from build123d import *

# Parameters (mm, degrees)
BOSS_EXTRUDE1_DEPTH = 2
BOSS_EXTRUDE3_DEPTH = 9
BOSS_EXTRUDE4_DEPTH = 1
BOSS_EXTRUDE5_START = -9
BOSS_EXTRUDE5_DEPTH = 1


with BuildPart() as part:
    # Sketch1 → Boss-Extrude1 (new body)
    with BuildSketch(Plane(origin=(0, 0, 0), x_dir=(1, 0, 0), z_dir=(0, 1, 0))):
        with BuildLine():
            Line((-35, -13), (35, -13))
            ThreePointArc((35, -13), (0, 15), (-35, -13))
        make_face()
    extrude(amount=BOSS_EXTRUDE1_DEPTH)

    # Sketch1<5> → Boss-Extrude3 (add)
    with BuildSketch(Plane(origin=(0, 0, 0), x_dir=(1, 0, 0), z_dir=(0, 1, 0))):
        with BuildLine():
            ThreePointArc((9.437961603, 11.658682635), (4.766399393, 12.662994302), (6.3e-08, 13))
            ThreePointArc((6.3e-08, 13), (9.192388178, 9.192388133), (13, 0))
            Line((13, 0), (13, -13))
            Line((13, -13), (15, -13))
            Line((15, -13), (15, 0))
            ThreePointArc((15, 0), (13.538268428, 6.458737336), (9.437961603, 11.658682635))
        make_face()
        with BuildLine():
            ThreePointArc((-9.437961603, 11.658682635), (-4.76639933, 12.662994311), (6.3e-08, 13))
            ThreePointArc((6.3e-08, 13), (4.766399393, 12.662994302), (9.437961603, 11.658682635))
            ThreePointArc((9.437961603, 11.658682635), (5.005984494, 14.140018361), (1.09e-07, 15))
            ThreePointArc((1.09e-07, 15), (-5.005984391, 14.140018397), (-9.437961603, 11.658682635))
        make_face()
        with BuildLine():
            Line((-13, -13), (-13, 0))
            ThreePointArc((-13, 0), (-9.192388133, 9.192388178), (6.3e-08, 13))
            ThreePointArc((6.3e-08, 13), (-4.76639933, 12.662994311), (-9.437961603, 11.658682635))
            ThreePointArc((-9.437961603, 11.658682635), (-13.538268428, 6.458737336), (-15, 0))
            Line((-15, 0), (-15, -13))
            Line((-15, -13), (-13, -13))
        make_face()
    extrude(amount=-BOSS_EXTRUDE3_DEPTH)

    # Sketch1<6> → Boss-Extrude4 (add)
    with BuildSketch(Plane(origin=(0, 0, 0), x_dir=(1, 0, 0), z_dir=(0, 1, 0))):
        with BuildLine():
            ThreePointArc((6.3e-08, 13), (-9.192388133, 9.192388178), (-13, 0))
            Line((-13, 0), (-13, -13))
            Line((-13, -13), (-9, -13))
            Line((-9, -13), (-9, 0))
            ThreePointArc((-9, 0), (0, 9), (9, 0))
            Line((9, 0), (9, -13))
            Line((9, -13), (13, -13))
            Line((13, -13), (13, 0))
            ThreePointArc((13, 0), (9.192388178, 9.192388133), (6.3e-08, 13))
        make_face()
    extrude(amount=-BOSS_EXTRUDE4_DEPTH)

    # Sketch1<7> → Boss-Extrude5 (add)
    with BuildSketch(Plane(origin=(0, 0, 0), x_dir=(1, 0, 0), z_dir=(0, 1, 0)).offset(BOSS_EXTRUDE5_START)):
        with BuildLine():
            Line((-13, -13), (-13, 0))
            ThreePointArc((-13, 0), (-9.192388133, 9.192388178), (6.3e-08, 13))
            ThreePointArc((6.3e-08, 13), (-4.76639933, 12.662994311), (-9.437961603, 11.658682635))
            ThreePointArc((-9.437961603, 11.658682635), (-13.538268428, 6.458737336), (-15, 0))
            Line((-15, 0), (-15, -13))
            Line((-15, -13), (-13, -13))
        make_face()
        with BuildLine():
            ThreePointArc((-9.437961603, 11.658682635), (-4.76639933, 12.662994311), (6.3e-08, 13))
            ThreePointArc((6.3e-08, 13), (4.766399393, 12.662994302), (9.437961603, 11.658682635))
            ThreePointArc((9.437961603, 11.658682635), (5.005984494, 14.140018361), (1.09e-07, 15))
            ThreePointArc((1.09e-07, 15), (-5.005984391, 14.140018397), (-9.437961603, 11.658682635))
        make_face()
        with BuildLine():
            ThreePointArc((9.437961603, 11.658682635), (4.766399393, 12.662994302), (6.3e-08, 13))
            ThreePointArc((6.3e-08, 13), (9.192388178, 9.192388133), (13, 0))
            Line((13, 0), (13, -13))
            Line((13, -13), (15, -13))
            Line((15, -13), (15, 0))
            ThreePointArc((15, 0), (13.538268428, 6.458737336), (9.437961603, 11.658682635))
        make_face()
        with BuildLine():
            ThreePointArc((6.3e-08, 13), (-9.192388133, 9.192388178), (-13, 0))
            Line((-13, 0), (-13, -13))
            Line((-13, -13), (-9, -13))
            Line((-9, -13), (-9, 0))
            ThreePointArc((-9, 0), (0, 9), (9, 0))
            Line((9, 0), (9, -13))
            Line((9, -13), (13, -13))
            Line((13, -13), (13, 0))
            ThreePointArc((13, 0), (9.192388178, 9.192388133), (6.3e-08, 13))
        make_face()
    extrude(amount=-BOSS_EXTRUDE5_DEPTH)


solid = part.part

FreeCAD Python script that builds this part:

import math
import FreeCAD as App
import Part
import Sketcher

doc = App.newDocument("Part")
body = doc.addObject("PartDesign::Body", "Body")

sketch1 = body.newObject("Sketcher::SketchObject", "Sketch")
sketch1.AttachmentSupport = (doc.getObject("XZ_Plane"), [""])
sketch1.MapMode = "FlatFace"
sketch1.addGeometry(Part.LineSegment(App.Vector(-35, 13, 0), App.Vector(35, 13, 0)), False)
sketch1.addGeometry(Part.ArcOfCircle(Part.Circle(App.Vector(0, 20.875, 0), App.Vector(0, 0, 1), 35.875), math.radians(-167.319617), math.radians(-12.680383)), False)
sketch1.addConstraint(Sketcher.Constraint("Coincident", 0, 1, 1, 1))
sketch1.addConstraint(Sketcher.Constraint("Coincident", 1, 2, 0, 2))
sketch1.addConstraint(Sketcher.Constraint("Horizontal", 0))
sketch1.addConstraint(Sketcher.Constraint("PointOnObject", 1, 3, -2))
sketch1.addConstraint(Sketcher.Constraint("DistanceX", 0, 1, 0, 2, 70.0))
sketch1.addConstraint(Sketcher.Constraint("DistanceY", -1, 1, 0, 1, 13.0))
sketch1.addConstraint(Sketcher.Constraint("Radius", 1, 35.875))
pad1 = body.newObject("PartDesign::Pad", "Pad")
pad1.Profile = sketch1
pad1.Length = 2
pad1.Reversed = True

sketch2 = body.newObject("Sketcher::SketchObject", "Sketch001")
sketch2.AttachmentSupport = (doc.getObject("XZ_Plane"), [""])
sketch2.MapMode = "FlatFace"
sketch2.addGeometry(Part.ArcOfCircle(Part.Circle(App.Vector(0, 0, 0), App.Vector(0, 0, 1), 13), math.radians(-90), math.radians(0)), False)
sketch2.addGeometry(Part.LineSegment(App.Vector(13, 0, 0), App.Vector(13, 13, 0)), False)
sketch2.addGeometry(Part.LineSegment(App.Vector(13, 13, 0), App.Vector(15, 13, 0)), False)
sketch2.addGeometry(Part.LineSegment(App.Vector(15, 13, 0), App.Vector(15, 0, 0)), False)
sketch2.addGeometry(Part.ArcOfCircle(Part.Circle(App.Vector(0, 0, 0), App.Vector(0, 0, 1), 15), math.radians(-51.009064), math.radians(0)), False)
sketch2.addGeometry(Part.ArcOfCircle(Part.Circle(App.Vector(0, 0, 0), App.Vector(0, 0, 1), 15), math.radians(-90), math.radians(-51.009064)), False)
sketch2.addGeometry(Part.ArcOfCircle(Part.Circle(App.Vector(0, 0, 0), App.Vector(0, 0, 1), 15), math.radians(-128.990936), math.radians(-90)), False)
sketch2.addGeometry(Part.ArcOfCircle(Part.Circle(App.Vector(0, 0, 0), App.Vector(0, 0, 1), 15), math.radians(180), math.radians(231.009064)), False)
sketch2.addGeometry(Part.LineSegment(App.Vector(-15, 0, 0), App.Vector(-15, 13, 0)), False)
sketch2.addGeometry(Part.LineSegment(App.Vector(-15, 13, 0), App.Vector(-13, 13, 0)), False)
sketch2.addGeometry(Part.LineSegment(App.Vector(-13, 13, 0), App.Vector(-13, 0, 0)), False)
sketch2.addGeometry(Part.ArcOfCircle(Part.Circle(App.Vector(0, 0, 0), App.Vector(0, 0, 1), 13), math.radians(180), math.radians(270)), False)
sketch2.addConstraint(Sketcher.Constraint("Tangent", 0, 2, 1, 1))
sketch2.addConstraint(Sketcher.Constraint("Coincident", 1, 2, 2, 1))
sketch2.addConstraint(Sketcher.Constraint("Coincident", 2, 2, 3, 1))
sketch2.addConstraint(Sketcher.Constraint("Tangent", 3, 2, 4, 2))
sketch2.addConstraint(Sketcher.Constraint("Tangent", 4, 1, 5, 2))
sketch2.addConstraint(Sketcher.Constraint("Tangent", 5, 1, 6, 2))
sketch2.addConstraint(Sketcher.Constraint("Tangent", 6, 1, 7, 2))
sketch2.addConstraint(Sketcher.Constraint("Tangent", 7, 1, 8, 1))
sketch2.addConstraint(Sketcher.Constraint("Coincident", 8, 2, 9, 1))
sketch2.addConstraint(Sketcher.Constraint("Coincident", 9, 2, 10, 1))
sketch2.addConstraint(Sketcher.Constraint("Tangent", 10, 2, 11, 1))
sketch2.addConstraint(Sketcher.Constraint("Tangent", 11, 2, 0, 1))
sketch2.addConstraint(Sketcher.Constraint("Vertical", 1))
sketch2.addConstraint(Sketcher.Constraint("Horizontal", 2))
sketch2.addConstraint(Sketcher.Constraint("Vertical", 3))
sketch2.addConstraint(Sketcher.Constraint("Vertical", 8))
sketch2.addConstraint(Sketcher.Constraint("Horizontal", 9))
sketch2.addConstraint(Sketcher.Constraint("Vertical", 10))
sketch2.addConstraint(Sketcher.Constraint("Coincident", 0, 3, -1, 1))
sketch2.addConstraint(Sketcher.Constraint("Coincident", 4, 3, -1, 1))
sketch2.addConstraint(Sketcher.Constraint("Coincident", 6, 3, -1, 1))
sketch2.addConstraint(Sketcher.Constraint("Equal", 6, 7))
sketch2.addConstraint(Sketcher.Constraint("Equal", 0, 11))
sketch2.addConstraint(Sketcher.Constraint("PointOnObject", 5, 1, -2))
sketch2.addConstraint(Sketcher.Constraint("PointOnObject", 11, 2, -2))
sketch2.addConstraint(Sketcher.Constraint("Horizontal", 4, 1, 6, 1))
sketch2.addConstraint(Sketcher.Constraint("Horizontal", 2, 2, 8, 2))
sketch2.addConstraint(Sketcher.Constraint("Radius", 0, 13.0))
sketch2.addConstraint(Sketcher.Constraint("Radius", 4, 15.0))
sketch2.addConstraint(Sketcher.Constraint("DistanceY", 1, 1, 1, 2, 13.0))
sketch2.addConstraint(Sketcher.Constraint("DistanceX", -1, 1, 4, 1, 9.437962))
pad2 = body.newObject("PartDesign::Pad", "Pad001")
pad2.Profile = sketch2
pad2.Length = 9

sketch3 = body.newObject("Sketcher::SketchObject", "Sketch002")
sketch3.AttachmentSupport = (doc.getObject("XZ_Plane"), [""])
sketch3.MapMode = "FlatFace"
sketch3.addGeometry(Part.ArcOfCircle(Part.Circle(App.Vector(0, 0, 0), App.Vector(0, 0, 1), 13), math.radians(180), math.radians(270)), False)
sketch3.addGeometry(Part.LineSegment(App.Vector(-13, 0, 0), App.Vector(-13, 13, 0)), False)
sketch3.addGeometry(Part.LineSegment(App.Vector(-13, 13, 0), App.Vector(-9, 13, 0)), False)
sketch3.addGeometry(Part.LineSegment(App.Vector(-9, 13, 0), App.Vector(-9, 0, 0)), False)
sketch3.addGeometry(Part.ArcOfCircle(Part.Circle(App.Vector(0, 0, 0), App.Vector(0, 0, 1), 9), math.radians(180), math.radians(360)), False)
sketch3.addGeometry(Part.LineSegment(App.Vector(9, 0, 0), App.Vector(9, 13, 0)), False)
sketch3.addGeometry(Part.LineSegment(App.Vector(9, 13, 0), App.Vector(13, 13, 0)), False)
sketch3.addGeometry(Part.LineSegment(App.Vector(13, 13, 0), App.Vector(13, 0, 0)), False)
sketch3.addGeometry(Part.ArcOfCircle(Part.Circle(App.Vector(0, 0, 0), App.Vector(0, 0, 1), 13), math.radians(-90), math.radians(0)), False)
sketch3.addConstraint(Sketcher.Constraint("Tangent", 0, 1, 1, 1))
sketch3.addConstraint(Sketcher.Constraint("Coincident", 1, 2, 2, 1))
sketch3.addConstraint(Sketcher.Constraint("Coincident", 2, 2, 3, 1))
sketch3.addConstraint(Sketcher.Constraint("Tangent", 3, 2, 4, 1))
sketch3.addConstraint(Sketcher.Constraint("Tangent", 4, 2, 5, 1))
sketch3.addConstraint(Sketcher.Constraint("Coincident", 5, 2, 6, 1))
sketch3.addConstraint(Sketcher.Constraint("Coincident", 6, 2, 7, 1))
sketch3.addConstraint(Sketcher.Constraint("Tangent", 7, 2, 8, 2))
sketch3.addConstraint(Sketcher.Constraint("Tangent", 8, 1, 0, 2))
sketch3.addConstraint(Sketcher.Constraint("Vertical", 1))
sketch3.addConstraint(Sketcher.Constraint("Horizontal", 2))
sketch3.addConstraint(Sketcher.Constraint("Vertical", 3))
sketch3.addConstraint(Sketcher.Constraint("Vertical", 5))
sketch3.addConstraint(Sketcher.Constraint("Horizontal", 6))
sketch3.addConstraint(Sketcher.Constraint("Vertical", 7))
sketch3.addConstraint(Sketcher.Constraint("Coincident", 0, 3, -1, 1))
sketch3.addConstraint(Sketcher.Constraint("Coincident", 4, 3, -1, 1))
sketch3.addConstraint(Sketcher.Constraint("Equal", 0, 8))
sketch3.addConstraint(Sketcher.Constraint("PointOnObject", 8, 1, -2))
sketch3.addConstraint(Sketcher.Constraint("Horizontal", 2, 2, 5, 2))
sketch3.addConstraint(Sketcher.Constraint("Radius", 0, 13.0))
sketch3.addConstraint(Sketcher.Constraint("Radius", 4, 9.0))
sketch3.addConstraint(Sketcher.Constraint("DistanceY", 1, 1, 1, 2, 13.0))
pad3 = body.newObject("PartDesign::Pad", "Pad002")
pad3.Profile = sketch3
pad3.Length = 1

sketch4 = body.newObject("Sketcher::SketchObject", "Sketch003")
sketch4.AttachmentSupport = (doc.getObject("XZ_Plane"), [""])
sketch4.MapMode = "FlatFace"
sketch4.AttachmentOffset = App.Placement(App.Vector(0, 0, 9), App.Rotation())
sketch4.addGeometry(Part.LineSegment(App.Vector(15, 13, 0), App.Vector(15, 0, 0)), False)
sketch4.addGeometry(Part.ArcOfCircle(Part.Circle(App.Vector(0, 0, 0), App.Vector(0, 0, 1), 15), math.radians(-51.009064), math.radians(0)), False)
sketch4.addGeometry(Part.ArcOfCircle(Part.Circle(App.Vector(0, 0, 0), App.Vector(0, 0, 1), 15), math.radians(-90), math.radians(-51.009064)), False)
sketch4.addGeometry(Part.ArcOfCircle(Part.Circle(App.Vector(0, 0, 0), App.Vector(0, 0, 1), 15), math.radians(-128.990936), math.radians(-90)), False)
sketch4.addGeometry(Part.ArcOfCircle(Part.Circle(App.Vector(0, 0, 0), App.Vector(0, 0, 1), 15), math.radians(180), math.radians(231.009064)), False)
sketch4.addGeometry(Part.LineSegment(App.Vector(-15, 0, 0), App.Vector(-15, 13, 0)), False)
sketch4.addGeometry(Part.LineSegment(App.Vector(-15, 13, 0), App.Vector(-9, 13, 0)), False)
sketch4.addGeometry(Part.LineSegment(App.Vector(-9, 13, 0), App.Vector(-9, 0, 0)), False)
sketch4.addGeometry(Part.ArcOfCircle(Part.Circle(App.Vector(0, 0, 0), App.Vector(0, 0, 1), 9), math.radians(180), math.radians(360)), False)
sketch4.addGeometry(Part.LineSegment(App.Vector(9, 0, 0), App.Vector(9, 13, 0)), False)
sketch4.addGeometry(Part.LineSegment(App.Vector(9, 13, 0), App.Vector(15, 13, 0)), False)
sketch4.addConstraint(Sketcher.Constraint("Tangent", 0, 2, 1, 2))
sketch4.addConstraint(Sketcher.Constraint("Tangent", 1, 1, 2, 2))
sketch4.addConstraint(Sketcher.Constraint("Tangent", 2, 1, 3, 2))
sketch4.addConstraint(Sketcher.Constraint("Tangent", 3, 1, 4, 2))
sketch4.addConstraint(Sketcher.Constraint("Tangent", 4, 1, 5, 1))
sketch4.addConstraint(Sketcher.Constraint("Coincident", 5, 2, 6, 1))
sketch4.addConstraint(Sketcher.Constraint("Coincident", 6, 2, 7, 1))
sketch4.addConstraint(Sketcher.Constraint("Tangent", 7, 2, 8, 1))
sketch4.addConstraint(Sketcher.Constraint("Tangent", 8, 2, 9, 1))
sketch4.addConstraint(Sketcher.Constraint("Coincident", 9, 2, 10, 1))
sketch4.addConstraint(Sketcher.Constraint("Coincident", 10, 2, 0, 1))
sketch4.addConstraint(Sketcher.Constraint("Vertical", 0))
sketch4.addConstraint(Sketcher.Constraint("Vertical", 5))
sketch4.addConstraint(Sketcher.Constraint("Horizontal", 6))
sketch4.addConstraint(Sketcher.Constraint("Vertical", 7))
sketch4.addConstraint(Sketcher.Constraint("Vertical", 9))
sketch4.addConstraint(Sketcher.Constraint("Horizontal", 10))
sketch4.addConstraint(Sketcher.Constraint("Coincident", 1, 3, -1, 1))
sketch4.addConstraint(Sketcher.Constraint("Coincident", 3, 3, -1, 1))
sketch4.addConstraint(Sketcher.Constraint("Coincident", 8, 3, -1, 1))
sketch4.addConstraint(Sketcher.Constraint("Equal", 3, 4))
sketch4.addConstraint(Sketcher.Constraint("PointOnObject", 2, 1, -2))
sketch4.addConstraint(Sketcher.Constraint("Horizontal", 1, 1, 3, 1))
sketch4.addConstraint(Sketcher.Constraint("Horizontal", 6, 2, 9, 2))
sketch4.addConstraint(Sketcher.Constraint("Radius", 1, 15.0))
sketch4.addConstraint(Sketcher.Constraint("Radius", 8, 9.0))
sketch4.addConstraint(Sketcher.Constraint("DistanceY", 0, 2, 0, 1, 13.0))
sketch4.addConstraint(Sketcher.Constraint("DistanceX", -1, 1, 1, 1, 9.437962))
pad4 = body.newObject("PartDesign::Pad", "Pad003")
pad4.Profile = sketch4
pad4.Length = 1

doc.recompute()
